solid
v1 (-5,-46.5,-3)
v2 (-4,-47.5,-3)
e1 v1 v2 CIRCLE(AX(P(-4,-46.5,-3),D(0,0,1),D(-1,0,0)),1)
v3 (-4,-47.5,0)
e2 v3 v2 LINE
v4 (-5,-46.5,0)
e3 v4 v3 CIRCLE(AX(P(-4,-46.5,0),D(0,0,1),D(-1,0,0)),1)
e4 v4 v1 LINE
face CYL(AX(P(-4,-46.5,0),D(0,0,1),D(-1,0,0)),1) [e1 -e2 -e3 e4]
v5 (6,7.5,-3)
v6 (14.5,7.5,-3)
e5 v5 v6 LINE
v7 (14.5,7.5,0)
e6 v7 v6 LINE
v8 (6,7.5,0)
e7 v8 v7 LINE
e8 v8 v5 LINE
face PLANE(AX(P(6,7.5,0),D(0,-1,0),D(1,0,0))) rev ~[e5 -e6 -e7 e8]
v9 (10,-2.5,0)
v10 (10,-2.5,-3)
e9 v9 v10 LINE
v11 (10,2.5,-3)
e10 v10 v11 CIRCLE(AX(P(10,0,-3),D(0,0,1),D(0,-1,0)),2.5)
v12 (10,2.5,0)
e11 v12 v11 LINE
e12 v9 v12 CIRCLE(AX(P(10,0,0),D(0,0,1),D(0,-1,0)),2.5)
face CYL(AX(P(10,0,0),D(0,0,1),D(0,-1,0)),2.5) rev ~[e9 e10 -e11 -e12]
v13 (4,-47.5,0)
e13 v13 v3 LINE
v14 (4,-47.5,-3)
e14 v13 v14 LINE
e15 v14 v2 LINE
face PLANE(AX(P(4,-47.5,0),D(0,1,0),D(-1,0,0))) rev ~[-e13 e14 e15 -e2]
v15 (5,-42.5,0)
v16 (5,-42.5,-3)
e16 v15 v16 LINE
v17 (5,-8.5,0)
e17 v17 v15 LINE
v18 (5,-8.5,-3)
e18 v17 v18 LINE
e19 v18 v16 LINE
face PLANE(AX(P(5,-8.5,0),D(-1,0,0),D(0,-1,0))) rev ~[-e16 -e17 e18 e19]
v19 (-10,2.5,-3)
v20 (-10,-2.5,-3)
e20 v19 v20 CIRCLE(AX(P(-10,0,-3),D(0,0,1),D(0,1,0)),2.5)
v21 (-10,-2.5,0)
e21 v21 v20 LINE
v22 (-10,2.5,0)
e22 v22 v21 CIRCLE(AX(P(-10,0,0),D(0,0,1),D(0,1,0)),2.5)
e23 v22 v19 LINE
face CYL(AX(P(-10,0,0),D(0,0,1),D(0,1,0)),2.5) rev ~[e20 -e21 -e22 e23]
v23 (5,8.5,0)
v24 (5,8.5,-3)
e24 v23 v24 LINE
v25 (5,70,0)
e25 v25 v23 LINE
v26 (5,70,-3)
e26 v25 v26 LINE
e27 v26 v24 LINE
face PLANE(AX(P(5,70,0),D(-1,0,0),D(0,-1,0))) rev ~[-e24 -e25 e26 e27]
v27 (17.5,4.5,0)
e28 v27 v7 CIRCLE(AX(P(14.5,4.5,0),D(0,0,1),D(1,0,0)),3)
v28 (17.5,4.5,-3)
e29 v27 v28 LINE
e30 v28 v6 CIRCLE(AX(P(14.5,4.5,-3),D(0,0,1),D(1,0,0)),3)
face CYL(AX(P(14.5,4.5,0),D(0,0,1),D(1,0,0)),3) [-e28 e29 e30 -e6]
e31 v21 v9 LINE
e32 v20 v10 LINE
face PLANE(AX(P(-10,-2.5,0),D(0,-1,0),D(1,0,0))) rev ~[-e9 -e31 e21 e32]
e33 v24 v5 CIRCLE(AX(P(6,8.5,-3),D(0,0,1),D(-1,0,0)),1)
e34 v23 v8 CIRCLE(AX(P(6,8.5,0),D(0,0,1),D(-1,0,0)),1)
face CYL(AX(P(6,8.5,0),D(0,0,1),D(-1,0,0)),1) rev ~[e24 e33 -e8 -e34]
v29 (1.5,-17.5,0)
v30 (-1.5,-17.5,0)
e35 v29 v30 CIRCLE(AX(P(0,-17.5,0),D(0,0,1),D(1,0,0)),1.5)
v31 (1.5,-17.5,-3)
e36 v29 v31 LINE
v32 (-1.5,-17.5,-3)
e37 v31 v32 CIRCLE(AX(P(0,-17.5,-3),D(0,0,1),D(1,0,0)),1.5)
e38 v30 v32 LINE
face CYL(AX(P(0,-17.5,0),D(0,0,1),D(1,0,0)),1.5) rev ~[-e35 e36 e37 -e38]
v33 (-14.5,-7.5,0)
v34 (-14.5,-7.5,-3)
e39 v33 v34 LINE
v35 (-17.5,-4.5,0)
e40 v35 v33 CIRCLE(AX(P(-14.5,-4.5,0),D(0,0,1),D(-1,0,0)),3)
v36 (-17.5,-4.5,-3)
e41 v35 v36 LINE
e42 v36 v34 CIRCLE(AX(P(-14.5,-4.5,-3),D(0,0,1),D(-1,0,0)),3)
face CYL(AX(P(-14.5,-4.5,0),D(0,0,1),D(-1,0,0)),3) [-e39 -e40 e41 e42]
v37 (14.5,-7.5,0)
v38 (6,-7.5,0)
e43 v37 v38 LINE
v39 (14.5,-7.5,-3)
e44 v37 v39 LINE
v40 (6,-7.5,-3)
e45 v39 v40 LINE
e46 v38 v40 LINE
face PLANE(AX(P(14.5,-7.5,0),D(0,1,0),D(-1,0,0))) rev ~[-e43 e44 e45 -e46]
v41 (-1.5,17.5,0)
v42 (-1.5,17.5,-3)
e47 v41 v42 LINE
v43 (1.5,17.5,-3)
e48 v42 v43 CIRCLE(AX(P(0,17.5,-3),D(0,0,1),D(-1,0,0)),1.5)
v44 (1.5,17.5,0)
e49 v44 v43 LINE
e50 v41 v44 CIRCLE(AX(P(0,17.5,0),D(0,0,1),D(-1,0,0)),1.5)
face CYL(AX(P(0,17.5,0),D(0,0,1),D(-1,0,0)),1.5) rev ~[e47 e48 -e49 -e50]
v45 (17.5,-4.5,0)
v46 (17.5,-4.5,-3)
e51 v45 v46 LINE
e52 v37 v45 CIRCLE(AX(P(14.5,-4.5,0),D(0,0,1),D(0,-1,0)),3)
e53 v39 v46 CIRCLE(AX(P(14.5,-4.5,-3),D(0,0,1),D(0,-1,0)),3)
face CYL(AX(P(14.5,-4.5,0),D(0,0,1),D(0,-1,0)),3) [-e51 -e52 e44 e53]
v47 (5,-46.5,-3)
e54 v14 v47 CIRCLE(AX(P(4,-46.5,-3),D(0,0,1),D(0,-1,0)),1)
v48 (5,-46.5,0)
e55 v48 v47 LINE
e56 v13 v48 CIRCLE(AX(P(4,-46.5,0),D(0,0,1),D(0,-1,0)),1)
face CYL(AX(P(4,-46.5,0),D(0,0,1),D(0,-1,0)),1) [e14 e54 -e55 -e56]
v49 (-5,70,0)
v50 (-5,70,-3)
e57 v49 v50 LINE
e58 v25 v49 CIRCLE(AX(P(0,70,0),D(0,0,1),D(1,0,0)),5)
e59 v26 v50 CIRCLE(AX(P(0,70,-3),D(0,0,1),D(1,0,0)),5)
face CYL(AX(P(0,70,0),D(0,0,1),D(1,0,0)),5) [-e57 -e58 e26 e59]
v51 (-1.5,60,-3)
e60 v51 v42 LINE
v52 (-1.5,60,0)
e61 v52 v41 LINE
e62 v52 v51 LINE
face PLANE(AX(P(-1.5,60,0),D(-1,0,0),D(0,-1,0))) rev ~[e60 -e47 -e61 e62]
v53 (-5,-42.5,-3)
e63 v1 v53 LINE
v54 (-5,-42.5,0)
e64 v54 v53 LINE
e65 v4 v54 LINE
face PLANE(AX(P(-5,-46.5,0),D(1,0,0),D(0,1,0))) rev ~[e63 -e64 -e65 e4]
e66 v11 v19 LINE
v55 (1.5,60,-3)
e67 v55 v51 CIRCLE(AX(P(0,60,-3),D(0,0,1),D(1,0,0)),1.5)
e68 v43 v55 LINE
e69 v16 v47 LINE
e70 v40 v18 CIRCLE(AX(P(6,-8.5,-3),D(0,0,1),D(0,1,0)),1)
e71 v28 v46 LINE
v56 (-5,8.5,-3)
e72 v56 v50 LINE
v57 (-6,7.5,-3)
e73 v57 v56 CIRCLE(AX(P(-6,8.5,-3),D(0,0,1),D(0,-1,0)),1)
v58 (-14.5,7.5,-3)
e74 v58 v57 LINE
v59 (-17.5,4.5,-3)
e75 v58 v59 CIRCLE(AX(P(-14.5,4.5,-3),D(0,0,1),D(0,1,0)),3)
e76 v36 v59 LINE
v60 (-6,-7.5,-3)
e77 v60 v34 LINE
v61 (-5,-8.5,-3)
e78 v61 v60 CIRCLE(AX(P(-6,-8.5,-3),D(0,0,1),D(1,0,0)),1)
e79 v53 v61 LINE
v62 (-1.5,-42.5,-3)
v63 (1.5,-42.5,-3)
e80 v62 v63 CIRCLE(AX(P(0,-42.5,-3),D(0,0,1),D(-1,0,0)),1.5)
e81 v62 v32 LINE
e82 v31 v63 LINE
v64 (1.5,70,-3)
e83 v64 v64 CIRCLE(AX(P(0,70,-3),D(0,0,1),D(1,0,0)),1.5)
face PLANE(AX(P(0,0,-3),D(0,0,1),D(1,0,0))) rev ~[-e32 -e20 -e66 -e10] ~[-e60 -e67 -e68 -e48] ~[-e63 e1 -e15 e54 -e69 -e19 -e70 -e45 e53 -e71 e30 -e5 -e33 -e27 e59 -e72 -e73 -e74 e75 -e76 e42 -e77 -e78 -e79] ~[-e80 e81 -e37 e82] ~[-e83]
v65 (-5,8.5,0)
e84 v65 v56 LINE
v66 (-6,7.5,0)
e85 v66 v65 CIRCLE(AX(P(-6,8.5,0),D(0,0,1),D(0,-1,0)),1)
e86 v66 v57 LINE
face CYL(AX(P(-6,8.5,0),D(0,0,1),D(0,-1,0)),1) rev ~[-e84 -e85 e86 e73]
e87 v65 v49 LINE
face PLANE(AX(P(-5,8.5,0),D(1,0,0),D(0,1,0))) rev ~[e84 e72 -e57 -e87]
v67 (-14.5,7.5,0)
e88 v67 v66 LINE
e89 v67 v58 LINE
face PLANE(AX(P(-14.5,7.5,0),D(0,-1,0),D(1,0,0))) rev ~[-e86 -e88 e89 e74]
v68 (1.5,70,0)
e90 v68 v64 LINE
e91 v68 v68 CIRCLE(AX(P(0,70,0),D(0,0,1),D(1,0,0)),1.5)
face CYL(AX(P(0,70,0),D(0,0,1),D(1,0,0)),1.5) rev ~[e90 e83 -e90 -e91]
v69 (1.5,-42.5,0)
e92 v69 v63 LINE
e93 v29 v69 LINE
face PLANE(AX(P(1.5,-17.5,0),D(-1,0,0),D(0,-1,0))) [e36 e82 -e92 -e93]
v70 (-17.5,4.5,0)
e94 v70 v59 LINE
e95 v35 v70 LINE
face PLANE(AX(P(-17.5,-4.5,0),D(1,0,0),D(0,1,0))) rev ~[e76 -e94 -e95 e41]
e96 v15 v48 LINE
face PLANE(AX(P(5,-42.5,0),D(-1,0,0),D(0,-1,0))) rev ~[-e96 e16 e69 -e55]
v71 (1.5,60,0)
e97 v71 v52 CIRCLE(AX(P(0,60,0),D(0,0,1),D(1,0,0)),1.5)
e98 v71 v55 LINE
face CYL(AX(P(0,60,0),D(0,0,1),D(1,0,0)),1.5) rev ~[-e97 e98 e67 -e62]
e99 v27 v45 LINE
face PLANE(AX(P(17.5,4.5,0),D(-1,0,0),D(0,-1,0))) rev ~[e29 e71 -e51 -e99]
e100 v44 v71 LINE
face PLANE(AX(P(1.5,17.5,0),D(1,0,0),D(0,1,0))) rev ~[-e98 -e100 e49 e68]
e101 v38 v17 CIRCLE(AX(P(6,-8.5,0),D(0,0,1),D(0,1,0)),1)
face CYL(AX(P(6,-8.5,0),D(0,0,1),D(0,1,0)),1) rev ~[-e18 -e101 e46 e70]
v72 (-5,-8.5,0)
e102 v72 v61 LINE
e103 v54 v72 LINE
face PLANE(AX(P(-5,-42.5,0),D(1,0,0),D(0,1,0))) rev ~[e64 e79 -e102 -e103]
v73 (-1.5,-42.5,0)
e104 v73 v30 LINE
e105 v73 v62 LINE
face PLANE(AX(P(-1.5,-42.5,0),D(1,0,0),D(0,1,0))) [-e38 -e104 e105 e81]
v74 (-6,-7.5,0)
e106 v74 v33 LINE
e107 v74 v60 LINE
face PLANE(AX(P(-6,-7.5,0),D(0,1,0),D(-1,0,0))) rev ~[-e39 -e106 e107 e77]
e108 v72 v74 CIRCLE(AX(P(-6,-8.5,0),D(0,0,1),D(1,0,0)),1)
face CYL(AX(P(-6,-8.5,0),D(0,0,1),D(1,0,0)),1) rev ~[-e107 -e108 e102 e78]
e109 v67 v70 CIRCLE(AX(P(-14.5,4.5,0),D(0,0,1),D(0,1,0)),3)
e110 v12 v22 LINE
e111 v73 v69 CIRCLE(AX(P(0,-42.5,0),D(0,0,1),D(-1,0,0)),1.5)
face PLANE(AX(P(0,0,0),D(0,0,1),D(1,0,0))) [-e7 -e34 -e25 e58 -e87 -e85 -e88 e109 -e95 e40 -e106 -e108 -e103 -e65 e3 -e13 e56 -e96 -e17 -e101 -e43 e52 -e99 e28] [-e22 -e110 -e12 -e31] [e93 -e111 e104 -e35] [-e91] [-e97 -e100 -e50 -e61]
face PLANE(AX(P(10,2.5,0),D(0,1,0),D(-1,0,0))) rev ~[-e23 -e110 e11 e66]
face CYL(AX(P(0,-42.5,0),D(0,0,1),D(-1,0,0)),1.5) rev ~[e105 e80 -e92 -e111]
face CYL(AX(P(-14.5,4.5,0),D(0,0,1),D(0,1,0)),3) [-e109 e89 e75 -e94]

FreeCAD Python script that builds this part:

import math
import FreeCAD as App
import Part
import Sketcher

V = App.Vector
Q = App.Units.Quantity

doc = App.newDocument("Part")
body = doc.addObject("PartDesign::Body", "Body")

sketch1 = body.newObject("Sketcher::SketchObject", "Sketch")
sketch1.AttachmentSupport = (doc.getObject("XY_Plane"), [""])
sketch1.MapMode = "FlatFace"
sketch1.addGeometry([
    Part.LineSegment(V(17.5, -4.5, 0), V(17.5, 4.5, 0)),
    Part.ArcOfCircle(Part.Circle(V(14.5, 4.5, 0), V(0, 0, 1), 3), math.radians(0), math.radians(90)),
    Part.LineSegment(V(14.5, 7.5, 0), V(6, 7.5, 0)),
    Part.ArcOfCircle(Part.Circle(V(6, 8.5, 0), V(0, 0, 1), 1), math.radians(180), math.radians(270)),
    Part.LineSegment(V(5, 8.5, 0), V(5, 70, 0)),
    Part.ArcOfCircle(Part.Circle(V(0, 70, 0), V(0, 0, 1), 5), math.radians(0), math.radians(180)),
    Part.LineSegment(V(-5, 70, 0), V(-5, 8.5, 0)),
    Part.ArcOfCircle(Part.Circle(V(-6, 8.5, 0), V(0, 0, 1), 1), math.radians(-90), math.radians(0)),
    Part.LineSegment(V(-6, 7.5, 0), V(-14.5, 7.5, 0)),
    Part.ArcOfCircle(Part.Circle(V(-14.5, 4.5, 0), V(0, 0, 1), 3), math.radians(90), math.radians(180)),
    Part.LineSegment(V(-17.5, 4.5, 0), V(-17.5, -4.5, 0)),
    Part.ArcOfCircle(Part.Circle(V(-14.5, -4.5, 0), V(0, 0, 1), 3), math.radians(180), math.radians(270)),
    Part.LineSegment(V(-14.5, -7.5, 0), V(-6, -7.5, 0)),
    Part.ArcOfCircle(Part.Circle(V(-6, -8.5, 0), V(0, 0, 1), 1), math.radians(0), math.radians(90)),
    Part.LineSegment(V(-5, -8.5, 0), V(-5, -46.5, 0)),
    Part.ArcOfCircle(Part.Circle(V(-4, -46.5, 0), V(0, 0, 1), 1), math.radians(180), math.radians(270)),
    Part.LineSegment(V(-4, -47.5, 0), V(4, -47.5, 0)),
    Part.ArcOfCircle(Part.Circle(V(4, -46.5, 0), V(0, 0, 1), 1), math.radians(-90), math.radians(0)),
    Part.LineSegment(V(5, -46.5, 0), V(5, -8.5, 0)),
    Part.ArcOfCircle(Part.Circle(V(6, -8.5, 0), V(0, 0, 1), 1), math.radians(90), math.radians(180)),
    Part.LineSegment(V(6, -7.5, 0), V(14.5, -7.5, 0)),
    Part.ArcOfCircle(Part.Circle(V(14.5, -4.5, 0), V(0, 0, 1), 3), math.radians(-90), math.radians(0)),
    Part.ArcOfCircle(Part.Circle(V(0, -42.5, 0), V(0, 0, 1), 1.5), math.radians(180), math.radians(360)),
    Part.LineSegment(V(-1.5, -42.5, 0), V(-1.5, -17.5, 0)),
    Part.ArcOfCircle(Part.Circle(V(0, -17.5, 0), V(0, 0, 1), 1.5), math.radians(0), math.radians(180)),
    Part.LineSegment(V(1.5, -17.5, 0), V(1.5, -42.5, 0)),
    Part.LineSegment(V(10, -2.5, 0), V(-10, -2.5, 0)),
    Part.ArcOfCircle(Part.Circle(V(-10, 0, 0), V(0, 0, 1), 2.5), math.radians(90), math.radians(270)),
    Part.LineSegment(V(-10, 2.5, 0), V(10, 2.5, 0)),
    Part.ArcOfCircle(Part.Circle(V(10, 0, 0), V(0, 0, 1), 2.5), math.radians(-90), math.radians(90)),
    Part.LineSegment(V(-1.5, 17.5, 0), V(-1.5, 60, 0)),
    Part.ArcOfCircle(Part.Circle(V(0, 60, 0), V(0, 0, 1), 1.5), math.radians(0), math.radians(180)),
    Part.LineSegment(V(1.5, 60, 0), V(1.5, 17.5, 0)),
    Part.ArcOfCircle(Part.Circle(V(0, 17.5, 0), V(0, 0, 1), 1.5), math.radians(180), math.radians(360)),
    Part.Circle(V(0, 70, 0), V(0, 0, 1), 1.5),
], False)
sketch1.addConstraint([
    Sketcher.Constraint("Tangent", 0, 2, 1, 1),
    Sketcher.Constraint("Tangent", 1, 2, 2, 1),
    Sketcher.Constraint("Tangent", 2, 2, 3, 2),
    Sketcher.Constraint("Tangent", 3, 1, 4, 1),
    Sketcher.Constraint("Tangent", 4, 2, 5, 1),
    Sketcher.Constraint("Tangent", 5, 2, 6, 1),
    Sketcher.Constraint("Tangent", 6, 2, 7, 2),
    Sketcher.Constraint("Tangent", 7, 1, 8, 1),
    Sketcher.Constraint("Tangent", 8, 2, 9, 1),
    Sketcher.Constraint("Tangent", 9, 2, 10, 1),
    Sketcher.Constraint("Tangent", 10, 2, 11, 1),
    Sketcher.Constraint("Tangent", 11, 2, 12, 1),
    Sketcher.Constraint("Tangent", 12, 2, 13, 2),
    Sketcher.Constraint("Tangent", 13, 1, 14, 1),
    Sketcher.Constraint("Tangent", 14, 2, 15, 1),
    Sketcher.Constraint("Tangent", 15, 2, 16, 1),
    Sketcher.Constraint("Tangent", 16, 2, 17, 1),
    Sketcher.Constraint("Tangent", 17, 2, 18, 1),
    Sketcher.Constraint("Tangent", 18, 2, 19, 2),
    Sketcher.Constraint("Tangent", 19, 1, 20, 1),
    Sketcher.Constraint("Tangent", 20, 2, 21, 1),
    Sketcher.Constraint("Tangent", 21, 2, 0, 1),
    Sketcher.Constraint("Tangent", 22, 1, 23, 1),
    Sketcher.Constraint("Tangent", 23, 2, 24, 2),
    Sketcher.Constraint("Tangent", 24, 1, 25, 1),
    Sketcher.Constraint("Tangent", 25, 2, 22, 2),
    Sketcher.Constraint("Tangent", 26, 2, 27, 2),
    Sketcher.Constraint("Tangent", 27, 1, 28, 1),
    Sketcher.Constraint("Tangent", 28, 2, 29, 2),
    Sketcher.Constraint("Tangent", 29, 1, 26, 1),
    Sketcher.Constraint("Tangent", 30, 2, 31, 2),
    Sketcher.Constraint("Tangent", 31, 1, 32, 1),
    Sketcher.Constraint("Tangent", 32, 2, 33, 2),
    Sketcher.Constraint("Tangent", 33, 1, 30, 1),
    Sketcher.Constraint("Vertical", 0),
    Sketcher.Constraint("Horizontal", 2),
    Sketcher.Constraint("Vertical", 4),
    Sketcher.Constraint("Vertical", 6),
    Sketcher.Constraint("Horizontal", 8),
    Sketcher.Constraint("Vertical", 10),
    Sketcher.Constraint("Horizontal", 12),
    Sketcher.Constraint("Vertical", 14),
    Sketcher.Constraint("Horizontal", 16),
    Sketcher.Constraint("Vertical", 18),
    Sketcher.Constraint("Horizontal", 20),
    Sketcher.Constraint("Vertical", 23),
    Sketcher.Constraint("Vertical", 25),
    Sketcher.Constraint("Horizontal", 26),
    Sketcher.Constraint("Horizontal", 28),
    Sketcher.Constraint("Vertical", 30),
    Sketcher.Constraint("Vertical", 32),
    Sketcher.Constraint("Coincident", 34, 3, 5, 3),
    Sketcher.Constraint("Equal", 3, 7),
    Sketcher.Constraint("Equal", 1, 9),
    Sketcher.Constraint("Equal", 9, 11),
    Sketcher.Constraint("Equal", 7, 13),
    Sketcher.Constraint("Equal", 13, 15),
    Sketcher.Constraint("Equal", 15, 17),
    Sketcher.Constraint("Equal", 17, 19),
    Sketcher.Constraint("Equal", 11, 21),
    Sketcher.Constraint("Equal", 24, 31),
    Sketcher.Constraint("Equal", 33, 34),
    Sketcher.Constraint("Symmetric", 1, 3, 11, 3, -1, 1),
    Sketcher.Constraint("Symmetric", 7, 3, 19, 3, -1, 1),
    Sketcher.Constraint("Symmetric", 27, 3, 29, 3, -1, 1),
    Sketcher.Constraint("Symmetric", 24, 3, 33, 3, -1, 1),
    Sketcher.Constraint("Symmetric", 3, 3, 7, 3, -2),
    Sketcher.Constraint("PointOnObject", 22, 3, -2),
    Sketcher.Constraint("Vertical", 7, 3, 13, 3),
    Sketcher.Constraint("Diameter", 34, Q("3 mm")),
    Sketcher.Constraint("Radius", 1, Q("3 mm")),
    Sketcher.Constraint("Radius", 3, Q("1 mm")),
    Sketcher.Constraint("Radius", 5, Q("5 mm")),
    Sketcher.Constraint("Radius", 27, Q("2.5 mm")),
    Sketcher.Constraint("DistanceX", 26, 2, 26, 1, Q("20 mm")),
    Sketcher.Constraint("DistanceY", -1, 1, 5, 3, Q("70 mm")),
    Sketcher.Constraint("DistanceY", 31, 3, 5, 3, Q("10 mm")),
    Sketcher.Constraint("DistanceY", 2, 2, 33, 3, Q("10 mm")),
    Sketcher.Constraint("DistanceY", 15, 2, 22, 3, Q("5 mm")),
    Sketcher.Constraint("DistanceY", 12, 2, 26, 2, Q("5 mm")),
    Sketcher.Constraint("DistanceY", 14, 2, 14, 1, Q("38 mm")),
    Sketcher.Constraint("DistanceX", 2, 2, 2, 1, Q("8.5 mm")),
])
pad1 = body.newObject("PartDesign::Pad", "Pad")
pad1.Profile = sketch1
pad1.Length = 3
pad1.Reversed = True

doc.recompute()
